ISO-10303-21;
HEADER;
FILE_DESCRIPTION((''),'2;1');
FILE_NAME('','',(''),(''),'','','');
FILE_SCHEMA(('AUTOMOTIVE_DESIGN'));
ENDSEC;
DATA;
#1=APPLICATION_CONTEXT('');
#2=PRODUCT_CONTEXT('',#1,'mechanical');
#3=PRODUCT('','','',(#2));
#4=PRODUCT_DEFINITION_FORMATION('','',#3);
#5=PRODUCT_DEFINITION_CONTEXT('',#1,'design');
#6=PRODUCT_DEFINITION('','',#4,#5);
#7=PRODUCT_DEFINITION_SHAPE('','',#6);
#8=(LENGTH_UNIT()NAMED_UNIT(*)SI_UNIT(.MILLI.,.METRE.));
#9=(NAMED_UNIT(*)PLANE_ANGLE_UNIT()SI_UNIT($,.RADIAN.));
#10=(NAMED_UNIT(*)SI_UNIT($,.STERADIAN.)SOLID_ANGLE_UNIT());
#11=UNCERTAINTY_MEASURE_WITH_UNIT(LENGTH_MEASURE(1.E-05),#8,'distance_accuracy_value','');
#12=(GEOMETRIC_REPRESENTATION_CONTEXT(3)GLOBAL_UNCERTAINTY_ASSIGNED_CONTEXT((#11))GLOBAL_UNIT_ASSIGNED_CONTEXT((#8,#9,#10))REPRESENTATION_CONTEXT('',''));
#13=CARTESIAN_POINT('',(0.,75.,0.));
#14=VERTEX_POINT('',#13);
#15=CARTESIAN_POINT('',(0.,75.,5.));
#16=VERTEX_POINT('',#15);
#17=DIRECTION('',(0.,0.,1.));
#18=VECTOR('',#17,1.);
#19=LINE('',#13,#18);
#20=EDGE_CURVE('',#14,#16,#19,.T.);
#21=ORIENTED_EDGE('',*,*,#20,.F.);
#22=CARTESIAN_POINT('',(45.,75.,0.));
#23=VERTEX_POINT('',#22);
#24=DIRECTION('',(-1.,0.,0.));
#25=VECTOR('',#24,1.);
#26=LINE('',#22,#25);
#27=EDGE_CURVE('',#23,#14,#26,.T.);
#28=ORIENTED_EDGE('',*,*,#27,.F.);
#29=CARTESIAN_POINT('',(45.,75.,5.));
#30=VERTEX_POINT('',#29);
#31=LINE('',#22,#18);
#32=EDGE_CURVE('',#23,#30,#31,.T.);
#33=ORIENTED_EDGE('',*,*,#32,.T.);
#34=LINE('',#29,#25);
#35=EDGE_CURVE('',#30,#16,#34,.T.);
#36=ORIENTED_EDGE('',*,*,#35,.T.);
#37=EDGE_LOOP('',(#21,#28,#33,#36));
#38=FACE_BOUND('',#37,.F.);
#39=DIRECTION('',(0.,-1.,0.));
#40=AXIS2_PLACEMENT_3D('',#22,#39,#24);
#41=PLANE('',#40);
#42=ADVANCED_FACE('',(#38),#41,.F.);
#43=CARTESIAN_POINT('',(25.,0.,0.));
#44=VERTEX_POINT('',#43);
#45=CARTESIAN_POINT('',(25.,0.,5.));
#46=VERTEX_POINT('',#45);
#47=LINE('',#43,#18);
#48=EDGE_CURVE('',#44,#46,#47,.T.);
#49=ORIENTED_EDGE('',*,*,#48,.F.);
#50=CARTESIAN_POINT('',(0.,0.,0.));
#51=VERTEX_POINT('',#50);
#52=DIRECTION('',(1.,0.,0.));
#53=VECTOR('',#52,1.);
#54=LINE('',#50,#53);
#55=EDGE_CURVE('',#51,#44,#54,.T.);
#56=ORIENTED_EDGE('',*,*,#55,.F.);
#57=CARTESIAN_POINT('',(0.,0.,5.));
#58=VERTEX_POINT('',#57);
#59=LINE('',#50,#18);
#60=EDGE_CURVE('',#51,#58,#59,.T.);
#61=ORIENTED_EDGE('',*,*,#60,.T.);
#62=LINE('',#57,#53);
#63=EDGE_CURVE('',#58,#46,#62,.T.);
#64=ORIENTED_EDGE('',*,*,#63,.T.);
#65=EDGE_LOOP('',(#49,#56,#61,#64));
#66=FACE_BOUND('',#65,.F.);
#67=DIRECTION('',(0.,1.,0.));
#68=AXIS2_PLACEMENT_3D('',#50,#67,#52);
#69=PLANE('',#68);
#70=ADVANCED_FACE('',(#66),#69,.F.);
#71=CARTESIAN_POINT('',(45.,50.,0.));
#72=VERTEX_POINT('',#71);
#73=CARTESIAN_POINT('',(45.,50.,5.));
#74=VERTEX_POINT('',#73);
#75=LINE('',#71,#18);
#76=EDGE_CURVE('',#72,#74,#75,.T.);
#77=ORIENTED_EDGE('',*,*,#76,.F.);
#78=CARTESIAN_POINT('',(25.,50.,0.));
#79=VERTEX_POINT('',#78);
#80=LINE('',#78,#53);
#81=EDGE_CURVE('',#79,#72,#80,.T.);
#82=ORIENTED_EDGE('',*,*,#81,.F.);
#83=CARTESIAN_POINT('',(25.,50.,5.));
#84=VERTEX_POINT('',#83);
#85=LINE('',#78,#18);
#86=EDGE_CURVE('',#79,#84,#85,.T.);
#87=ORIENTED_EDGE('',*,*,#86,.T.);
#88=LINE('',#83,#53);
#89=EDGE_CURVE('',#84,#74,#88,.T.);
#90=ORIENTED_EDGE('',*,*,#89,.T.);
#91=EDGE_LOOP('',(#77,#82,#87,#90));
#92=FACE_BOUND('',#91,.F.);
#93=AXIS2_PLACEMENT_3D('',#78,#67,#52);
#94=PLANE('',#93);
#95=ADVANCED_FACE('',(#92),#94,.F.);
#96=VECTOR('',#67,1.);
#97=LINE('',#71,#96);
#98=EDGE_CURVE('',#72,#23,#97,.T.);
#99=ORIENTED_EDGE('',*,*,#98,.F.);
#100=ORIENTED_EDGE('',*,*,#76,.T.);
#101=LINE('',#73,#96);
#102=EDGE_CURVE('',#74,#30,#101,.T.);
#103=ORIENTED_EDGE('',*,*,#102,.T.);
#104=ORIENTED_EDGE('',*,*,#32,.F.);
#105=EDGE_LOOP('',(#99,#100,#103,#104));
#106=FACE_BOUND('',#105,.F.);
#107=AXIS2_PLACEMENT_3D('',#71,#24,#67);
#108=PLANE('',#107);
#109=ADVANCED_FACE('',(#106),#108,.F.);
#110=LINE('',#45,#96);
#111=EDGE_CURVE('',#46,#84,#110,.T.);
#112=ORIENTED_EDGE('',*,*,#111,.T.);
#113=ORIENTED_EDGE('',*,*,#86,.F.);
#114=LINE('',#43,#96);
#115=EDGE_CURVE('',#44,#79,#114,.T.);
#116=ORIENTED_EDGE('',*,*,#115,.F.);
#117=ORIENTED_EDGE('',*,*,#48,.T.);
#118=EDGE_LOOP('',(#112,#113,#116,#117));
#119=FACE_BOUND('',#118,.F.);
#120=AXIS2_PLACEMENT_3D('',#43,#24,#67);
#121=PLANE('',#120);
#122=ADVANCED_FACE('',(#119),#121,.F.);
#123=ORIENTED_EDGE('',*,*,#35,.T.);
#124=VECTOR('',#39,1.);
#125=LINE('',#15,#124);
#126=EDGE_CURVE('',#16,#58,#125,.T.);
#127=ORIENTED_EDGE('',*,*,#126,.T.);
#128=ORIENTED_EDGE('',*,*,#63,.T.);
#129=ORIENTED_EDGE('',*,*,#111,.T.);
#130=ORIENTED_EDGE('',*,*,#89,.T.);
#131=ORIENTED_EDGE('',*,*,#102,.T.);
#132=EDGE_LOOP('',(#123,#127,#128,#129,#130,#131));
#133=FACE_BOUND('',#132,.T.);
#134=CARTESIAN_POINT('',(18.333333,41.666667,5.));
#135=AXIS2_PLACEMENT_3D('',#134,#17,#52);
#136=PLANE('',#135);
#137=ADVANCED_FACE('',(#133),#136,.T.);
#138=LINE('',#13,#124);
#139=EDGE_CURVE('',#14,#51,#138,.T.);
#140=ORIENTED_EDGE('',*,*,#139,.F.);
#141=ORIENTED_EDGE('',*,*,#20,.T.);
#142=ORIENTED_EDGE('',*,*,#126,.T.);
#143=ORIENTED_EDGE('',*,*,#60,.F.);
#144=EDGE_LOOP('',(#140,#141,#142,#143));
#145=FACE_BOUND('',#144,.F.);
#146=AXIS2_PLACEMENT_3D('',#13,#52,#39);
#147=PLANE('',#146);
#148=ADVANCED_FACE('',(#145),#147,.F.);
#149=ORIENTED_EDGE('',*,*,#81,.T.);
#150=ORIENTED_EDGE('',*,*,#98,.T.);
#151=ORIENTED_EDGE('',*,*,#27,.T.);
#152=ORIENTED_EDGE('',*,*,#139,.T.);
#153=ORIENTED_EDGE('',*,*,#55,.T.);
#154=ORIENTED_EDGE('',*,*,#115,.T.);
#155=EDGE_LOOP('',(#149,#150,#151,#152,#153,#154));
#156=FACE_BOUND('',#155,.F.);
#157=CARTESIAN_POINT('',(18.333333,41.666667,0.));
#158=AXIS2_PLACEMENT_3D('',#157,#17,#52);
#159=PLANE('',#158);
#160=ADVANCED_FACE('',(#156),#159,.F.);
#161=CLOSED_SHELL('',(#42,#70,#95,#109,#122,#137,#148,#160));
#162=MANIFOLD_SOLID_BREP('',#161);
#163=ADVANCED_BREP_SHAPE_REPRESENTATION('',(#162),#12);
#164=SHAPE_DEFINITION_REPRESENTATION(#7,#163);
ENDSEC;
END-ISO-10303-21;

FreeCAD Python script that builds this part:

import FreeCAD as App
import Part
import Sketcher

V = App.Vector
Q = App.Units.Quantity

doc = App.newDocument("Part")
body = doc.addObject("PartDesign::Body", "Body")

# Sketch on XY plane
sketch1 = body.newObject("Sketcher::SketchObject", "Sketch")
sketch1.AttachmentSupport = (doc.getObject("XY_Plane"), [""])
sketch1.MapMode = "FlatFace"
sketch1.addGeometry(Part.LineSegment(V(0, 0, 0), V(25, 0, 0)), False)
sketch1.addGeometry(Part.LineSegment(V(25, 0, 0), V(25, 50, 0)), False)
sketch1.addGeometry(Part.LineSegment(V(25, 50, 0), V(45, 50, 0)), False)
sketch1.addGeometry(Part.LineSegment(V(45, 50, 0), V(45, 75, 0)), False)
sketch1.addGeometry(Part.LineSegment(V(45, 75, 0), V(0, 75, 0)), False)
sketch1.addGeometry(Part.LineSegment(V(0, 75, 0), V(0, 0, 0)), False)
sketch1.addConstraint(Sketcher.Constraint("Coincident", 0, 2, 1, 1))
sketch1.addConstraint(Sketcher.Constraint("Coincident", 1, 2, 2, 1))
sketch1.addConstraint(Sketcher.Constraint("Coincident", 2, 2, 3, 1))
sketch1.addConstraint(Sketcher.Constraint("Coincident", 3, 2, 4, 1))
sketch1.addConstraint(Sketcher.Constraint("Coincident", 4, 2, 5, 1))
sketch1.addConstraint(Sketcher.Constraint("Coincident", 5, 2, 0, 1))
sketch1.addConstraint(Sketcher.Constraint("Horizontal", 0))
sketch1.addConstraint(Sketcher.Constraint("Vertical", 1))
sketch1.addConstraint(Sketcher.Constraint("Horizontal", 2))
sketch1.addConstraint(Sketcher.Constraint("Vertical", 3))
sketch1.addConstraint(Sketcher.Constraint("Horizontal", 4))
sketch1.addConstraint(Sketcher.Constraint("Vertical", 5))
sketch1.addConstraint(Sketcher.Constraint("Coincident", 5, 2, -1, 1))
sketch1.addConstraint(Sketcher.Constraint("Equal", 0, 3))
sketch1.addConstraint(Sketcher.Constraint("DistanceX", 0, 1, 0, 2, Q("25 mm")))
sketch1.addConstraint(Sketcher.Constraint("DistanceX", 2, 1, 2, 2, Q("20 mm")))
sketch1.addConstraint(Sketcher.Constraint("DistanceY", 1, 1, 1, 2, Q("50 mm")))
pad1 = body.newObject("PartDesign::Pad", "Pad")
pad1.Profile = sketch1
pad1.Length = 5

doc.recompute()
